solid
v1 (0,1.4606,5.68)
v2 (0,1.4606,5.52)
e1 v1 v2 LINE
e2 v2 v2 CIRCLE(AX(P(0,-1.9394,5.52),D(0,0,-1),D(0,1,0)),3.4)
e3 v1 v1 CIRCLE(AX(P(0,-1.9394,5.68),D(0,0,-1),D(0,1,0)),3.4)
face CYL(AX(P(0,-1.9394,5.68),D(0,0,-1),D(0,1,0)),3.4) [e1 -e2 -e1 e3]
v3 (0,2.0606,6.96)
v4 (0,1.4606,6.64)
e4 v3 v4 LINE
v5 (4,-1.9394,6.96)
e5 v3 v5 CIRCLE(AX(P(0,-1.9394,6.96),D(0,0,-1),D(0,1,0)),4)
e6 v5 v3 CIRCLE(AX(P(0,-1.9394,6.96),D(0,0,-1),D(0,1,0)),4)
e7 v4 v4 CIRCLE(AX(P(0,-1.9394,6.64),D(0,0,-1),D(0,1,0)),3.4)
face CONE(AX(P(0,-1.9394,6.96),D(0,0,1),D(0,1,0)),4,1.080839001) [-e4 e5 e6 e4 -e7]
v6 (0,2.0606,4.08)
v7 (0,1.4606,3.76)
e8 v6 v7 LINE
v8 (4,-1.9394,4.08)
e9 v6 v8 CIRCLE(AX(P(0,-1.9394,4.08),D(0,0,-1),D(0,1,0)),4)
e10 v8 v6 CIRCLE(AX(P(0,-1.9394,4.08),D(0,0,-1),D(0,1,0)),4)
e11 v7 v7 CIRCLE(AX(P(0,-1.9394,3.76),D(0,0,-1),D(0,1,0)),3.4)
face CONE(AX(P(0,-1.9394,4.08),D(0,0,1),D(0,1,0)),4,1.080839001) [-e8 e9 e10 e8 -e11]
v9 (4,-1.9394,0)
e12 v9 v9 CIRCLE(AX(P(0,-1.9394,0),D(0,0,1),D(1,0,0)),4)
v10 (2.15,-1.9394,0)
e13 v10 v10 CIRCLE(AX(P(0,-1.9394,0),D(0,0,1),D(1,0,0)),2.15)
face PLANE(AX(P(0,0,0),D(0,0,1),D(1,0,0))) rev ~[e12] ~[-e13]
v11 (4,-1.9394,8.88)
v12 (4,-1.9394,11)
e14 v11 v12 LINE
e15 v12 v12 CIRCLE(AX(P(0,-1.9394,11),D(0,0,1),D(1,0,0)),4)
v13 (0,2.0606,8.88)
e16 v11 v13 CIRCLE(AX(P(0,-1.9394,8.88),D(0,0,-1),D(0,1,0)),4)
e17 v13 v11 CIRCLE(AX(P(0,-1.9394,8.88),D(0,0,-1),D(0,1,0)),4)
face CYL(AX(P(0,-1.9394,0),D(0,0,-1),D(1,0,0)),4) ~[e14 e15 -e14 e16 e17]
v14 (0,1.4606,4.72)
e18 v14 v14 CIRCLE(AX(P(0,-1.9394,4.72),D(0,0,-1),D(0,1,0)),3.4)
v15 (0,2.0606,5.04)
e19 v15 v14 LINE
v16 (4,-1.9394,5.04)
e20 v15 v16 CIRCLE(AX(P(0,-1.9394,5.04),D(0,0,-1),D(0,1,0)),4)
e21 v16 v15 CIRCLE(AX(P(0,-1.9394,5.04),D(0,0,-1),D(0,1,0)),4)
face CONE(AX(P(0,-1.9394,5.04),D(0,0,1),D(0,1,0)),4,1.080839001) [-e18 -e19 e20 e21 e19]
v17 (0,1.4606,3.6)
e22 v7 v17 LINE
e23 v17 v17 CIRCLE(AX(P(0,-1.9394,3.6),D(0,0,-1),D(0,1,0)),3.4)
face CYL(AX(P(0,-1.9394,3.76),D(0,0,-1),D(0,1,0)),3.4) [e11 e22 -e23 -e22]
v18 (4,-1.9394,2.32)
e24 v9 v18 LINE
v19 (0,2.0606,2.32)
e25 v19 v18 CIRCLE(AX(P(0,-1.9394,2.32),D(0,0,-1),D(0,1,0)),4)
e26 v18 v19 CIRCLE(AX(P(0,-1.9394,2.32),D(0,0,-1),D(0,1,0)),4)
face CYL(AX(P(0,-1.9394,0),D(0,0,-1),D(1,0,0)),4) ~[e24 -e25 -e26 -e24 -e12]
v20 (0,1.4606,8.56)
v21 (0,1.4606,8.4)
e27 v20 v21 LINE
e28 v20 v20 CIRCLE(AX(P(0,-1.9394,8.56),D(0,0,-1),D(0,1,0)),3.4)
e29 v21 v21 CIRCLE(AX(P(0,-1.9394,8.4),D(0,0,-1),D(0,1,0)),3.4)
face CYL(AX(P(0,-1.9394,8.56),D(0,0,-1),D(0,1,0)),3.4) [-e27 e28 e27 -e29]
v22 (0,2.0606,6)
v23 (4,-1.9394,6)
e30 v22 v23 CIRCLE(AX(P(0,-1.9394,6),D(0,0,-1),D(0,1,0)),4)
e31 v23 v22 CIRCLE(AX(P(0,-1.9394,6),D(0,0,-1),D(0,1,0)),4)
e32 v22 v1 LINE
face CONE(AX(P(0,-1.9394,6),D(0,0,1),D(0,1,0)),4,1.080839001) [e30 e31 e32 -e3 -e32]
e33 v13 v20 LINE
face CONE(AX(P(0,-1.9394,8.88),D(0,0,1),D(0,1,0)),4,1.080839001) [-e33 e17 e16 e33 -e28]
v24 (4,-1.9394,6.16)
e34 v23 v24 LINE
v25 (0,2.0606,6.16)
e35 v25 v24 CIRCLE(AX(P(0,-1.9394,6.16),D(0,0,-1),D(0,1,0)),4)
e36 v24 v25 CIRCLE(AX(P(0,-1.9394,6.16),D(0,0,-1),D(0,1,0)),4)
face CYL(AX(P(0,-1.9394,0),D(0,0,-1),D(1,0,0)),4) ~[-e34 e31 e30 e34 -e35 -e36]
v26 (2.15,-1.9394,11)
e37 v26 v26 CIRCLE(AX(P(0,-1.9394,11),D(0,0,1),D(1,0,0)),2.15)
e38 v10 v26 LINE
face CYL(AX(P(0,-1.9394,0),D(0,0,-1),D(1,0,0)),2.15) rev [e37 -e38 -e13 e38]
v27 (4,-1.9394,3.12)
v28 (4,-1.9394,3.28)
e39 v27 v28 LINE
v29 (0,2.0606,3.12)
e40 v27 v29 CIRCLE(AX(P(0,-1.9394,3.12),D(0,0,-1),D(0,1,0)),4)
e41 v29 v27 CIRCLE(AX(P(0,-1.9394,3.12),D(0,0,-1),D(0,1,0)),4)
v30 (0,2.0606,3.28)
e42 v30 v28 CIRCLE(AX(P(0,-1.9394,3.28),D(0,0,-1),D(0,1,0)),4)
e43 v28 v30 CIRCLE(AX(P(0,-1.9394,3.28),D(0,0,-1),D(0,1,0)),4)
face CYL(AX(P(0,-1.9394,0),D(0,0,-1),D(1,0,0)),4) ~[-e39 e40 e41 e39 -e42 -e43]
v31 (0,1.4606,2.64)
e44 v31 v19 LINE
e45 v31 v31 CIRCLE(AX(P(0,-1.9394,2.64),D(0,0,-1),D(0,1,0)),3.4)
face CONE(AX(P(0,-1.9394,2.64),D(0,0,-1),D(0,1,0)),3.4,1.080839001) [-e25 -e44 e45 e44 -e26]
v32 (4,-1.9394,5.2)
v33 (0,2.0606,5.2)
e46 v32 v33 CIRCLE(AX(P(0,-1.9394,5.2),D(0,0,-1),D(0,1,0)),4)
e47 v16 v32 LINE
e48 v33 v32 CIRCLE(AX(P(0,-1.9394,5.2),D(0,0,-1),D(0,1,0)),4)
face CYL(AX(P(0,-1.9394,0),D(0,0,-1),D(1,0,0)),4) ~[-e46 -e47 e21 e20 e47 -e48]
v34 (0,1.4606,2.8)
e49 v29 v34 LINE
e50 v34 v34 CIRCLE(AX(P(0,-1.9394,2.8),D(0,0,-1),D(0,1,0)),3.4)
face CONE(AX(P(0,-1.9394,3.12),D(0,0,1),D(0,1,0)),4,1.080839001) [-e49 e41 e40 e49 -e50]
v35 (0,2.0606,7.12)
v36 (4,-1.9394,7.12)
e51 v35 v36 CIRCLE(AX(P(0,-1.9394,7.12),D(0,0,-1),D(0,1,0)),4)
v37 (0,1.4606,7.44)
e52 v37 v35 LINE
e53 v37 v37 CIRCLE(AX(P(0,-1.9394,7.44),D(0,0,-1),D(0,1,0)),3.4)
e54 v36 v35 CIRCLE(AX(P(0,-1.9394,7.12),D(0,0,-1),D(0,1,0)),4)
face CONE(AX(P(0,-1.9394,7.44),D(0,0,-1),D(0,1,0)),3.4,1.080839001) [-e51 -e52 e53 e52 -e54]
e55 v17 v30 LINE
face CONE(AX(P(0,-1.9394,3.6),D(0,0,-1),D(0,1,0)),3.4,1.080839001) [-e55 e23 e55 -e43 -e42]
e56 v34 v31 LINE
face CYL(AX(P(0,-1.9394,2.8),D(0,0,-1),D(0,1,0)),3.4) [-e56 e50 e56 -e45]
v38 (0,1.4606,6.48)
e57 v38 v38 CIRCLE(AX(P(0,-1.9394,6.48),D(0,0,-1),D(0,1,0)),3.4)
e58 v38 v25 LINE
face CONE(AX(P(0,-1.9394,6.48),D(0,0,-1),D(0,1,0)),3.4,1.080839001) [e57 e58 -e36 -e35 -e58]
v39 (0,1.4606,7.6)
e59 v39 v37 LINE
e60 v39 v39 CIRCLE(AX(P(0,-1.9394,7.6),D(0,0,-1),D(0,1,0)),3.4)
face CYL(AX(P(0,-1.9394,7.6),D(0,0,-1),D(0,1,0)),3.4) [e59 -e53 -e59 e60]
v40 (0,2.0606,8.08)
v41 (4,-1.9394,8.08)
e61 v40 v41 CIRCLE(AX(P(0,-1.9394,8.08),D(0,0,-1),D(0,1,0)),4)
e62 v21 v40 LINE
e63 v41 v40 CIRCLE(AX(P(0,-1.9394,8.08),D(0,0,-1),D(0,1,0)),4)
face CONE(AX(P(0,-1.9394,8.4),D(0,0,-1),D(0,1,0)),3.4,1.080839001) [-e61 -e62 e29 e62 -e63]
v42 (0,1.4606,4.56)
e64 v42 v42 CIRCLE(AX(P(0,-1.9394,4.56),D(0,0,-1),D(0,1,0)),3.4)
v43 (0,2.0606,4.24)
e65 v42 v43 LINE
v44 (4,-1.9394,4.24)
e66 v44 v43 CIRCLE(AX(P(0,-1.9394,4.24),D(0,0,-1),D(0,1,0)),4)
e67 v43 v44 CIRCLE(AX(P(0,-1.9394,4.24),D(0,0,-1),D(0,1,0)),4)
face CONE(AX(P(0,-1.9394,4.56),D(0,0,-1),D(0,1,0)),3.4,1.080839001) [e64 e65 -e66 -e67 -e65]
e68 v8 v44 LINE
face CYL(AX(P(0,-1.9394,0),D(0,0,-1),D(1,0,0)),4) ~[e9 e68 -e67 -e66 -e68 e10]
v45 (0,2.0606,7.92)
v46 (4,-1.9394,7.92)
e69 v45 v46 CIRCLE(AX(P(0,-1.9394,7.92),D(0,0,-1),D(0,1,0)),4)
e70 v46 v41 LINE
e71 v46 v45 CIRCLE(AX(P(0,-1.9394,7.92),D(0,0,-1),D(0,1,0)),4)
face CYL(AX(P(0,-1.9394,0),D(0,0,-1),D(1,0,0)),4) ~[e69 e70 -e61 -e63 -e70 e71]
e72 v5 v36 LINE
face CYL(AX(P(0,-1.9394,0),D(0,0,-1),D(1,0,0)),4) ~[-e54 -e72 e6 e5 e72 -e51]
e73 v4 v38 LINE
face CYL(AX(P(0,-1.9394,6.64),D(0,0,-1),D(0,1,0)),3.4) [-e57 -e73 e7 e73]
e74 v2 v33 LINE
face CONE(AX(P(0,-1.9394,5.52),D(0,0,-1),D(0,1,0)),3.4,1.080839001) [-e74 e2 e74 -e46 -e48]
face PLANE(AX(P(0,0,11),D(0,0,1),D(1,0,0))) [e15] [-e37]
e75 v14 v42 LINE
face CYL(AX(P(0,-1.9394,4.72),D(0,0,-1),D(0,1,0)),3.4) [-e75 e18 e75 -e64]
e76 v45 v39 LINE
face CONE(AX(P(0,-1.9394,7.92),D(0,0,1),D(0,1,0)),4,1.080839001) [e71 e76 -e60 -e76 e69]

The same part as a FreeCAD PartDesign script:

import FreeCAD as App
import Part
import Sketcher
from FreeCAD import Vector

doc = App.newDocument("Part")
body = doc.addObject("PartDesign::Body", "Body")

# Sketch on XY plane
sketch1 = doc.addObject("Sketcher::SketchObject", "Sketch")
body.addObject(sketch1)
sketch1.AttachmentSupport = (doc.XY_Plane, [""])
sketch1.MapMode = "FlatFace"
sketch1.addGeometry(Part.Circle(Vector(0, -1.9, 0), Vector(0, 0, 1), 4), False)
sketch1.addGeometry(Part.Circle(Vector(0, -1.9, 0), Vector(0, 0, 1), 2.1), False)
sketch1.addConstraint(Sketcher.Constraint("Coincident", 1, 3, 0, 3))
sketch1.addConstraint(Sketcher.Constraint("PointOnObject", 0, 3, -2))
sketch1.addConstraint(Sketcher.Constraint("Diameter", 0, 8.0))
sketch1.addConstraint(Sketcher.Constraint("Diameter", 1, 4.3))
sketch1.addConstraint(Sketcher.Constraint("DistanceY", 0, 3, -1, 1, 1.9394))
pad1 = doc.addObject("PartDesign::Pad", "Pad")
body.addObject(pad1)
pad1.Profile = sketch1
pad1.Length = 11

# Sketch on YZ plane
sketch2 = doc.addObject("Sketcher::SketchObject", "Sketch001")
body.addObject(sketch2)
sketch2.AttachmentSupport = (doc.YZ_Plane, [""])
sketch2.MapMode = "FlatFace"
sketch2.addGeometry(Part.LineSegment(Vector(2.06, 8.08, 0), Vector(2.06, 8.88, 0)), False)
sketch2.addGeometry(Part.LineSegment(Vector(2.06, 8.88, 0), Vector(1.46, 8.56, 0)), False)
sketch2.addGeometry(Part.LineSegment(Vector(1.46, 8.56, 0), Vector(1.46, 8.4, 0)), False)
sketch2.addGeometry(Part.LineSegment(Vector(1.46, 8.4, 0), Vector(2.06, 8.08, 0)), False)
sketch2.addGeometry(Part.LineSegment(Vector(2.06, 2.32, 0), Vector(2.06, 3.12, 0)), False)
sketch2.addGeometry(Part.LineSegment(Vector(2.06, 3.12, 0), Vector(1.46, 2.8, 0)), False)
sketch2.addGeometry(Part.LineSegment(Vector(1.46, 2.8, 0), Vector(1.46, 2.64, 0)), False)
sketch2.addGeometry(Part.LineSegment(Vector(1.46, 2.64, 0), Vector(2.06, 2.32, 0)), False)
sketch2.addGeometry(Part.LineSegment(Vector(2.06, 3.28, 0), Vector(2.06, 4.08, 0)), False)
sketch2.addGeometry(Part.LineSegment(Vector(2.06, 4.08, 0), Vector(1.46, 3.76, 0)), False)
sketch2.addGeometry(Part.LineSegment(Vector(1.46, 3.76, 0), Vector(1.46, 3.6, 0)), False)
sketch2.addGeometry(Part.LineSegment(Vector(1.46, 3.6, 0), Vector(2.06, 3.28, 0)), False)
sketch2.addGeometry(Part.LineSegment(Vector(2.06, 4.24, 0), Vector(2.06, 5.04, 0)), False)
sketch2.addGeometry(Part.LineSegment(Vector(2.06, 5.04, 0), Vector(1.46, 4.72, 0)), False)
sketch2.addGeometry(Part.LineSegment(Vector(1.46, 4.72, 0), Vector(1.46, 4.56, 0)), False)
sketch2.addGeometry(Part.LineSegment(Vector(1.46, 4.56, 0), Vector(2.06, 4.24, 0)), False)
sketch2.addGeometry(Part.LineSegment(Vector(2.06, 5.2, 0), Vector(2.06, 6, 0)), False)
sketch2.addGeometry(Part.LineSegment(Vector(2.06, 6, 0), Vector(1.46, 5.68, 0)), False)
sketch2.addGeometry(Part.LineSegment(Vector(1.46, 5.68, 0), Vector(1.46, 5.52, 0)), False)
sketch2.addGeometry(Part.LineSegment(Vector(1.46, 5.52, 0), Vector(2.06, 5.2, 0)), False)
sketch2.addGeometry(Part.LineSegment(Vector(2.06, 6.16, 0), Vector(2.06, 6.96, 0)), False)
sketch2.addGeometry(Part.LineSegment(Vector(2.06, 6.96, 0), Vector(1.46, 6.64, 0)), False)
sketch2.addGeometry(Part.LineSegment(Vector(1.46, 6.64, 0), Vector(1.46, 6.48, 0)), False)
sketch2.addGeometry(Part.LineSegment(Vector(1.46, 6.48, 0), Vector(2.06, 6.16, 0)), False)
sketch2.addGeometry(Part.LineSegment(Vector(2.06, 7.12, 0), Vector(2.06, 7.92, 0)), False)
sketch2.addGeometry(Part.LineSegment(Vector(2.06, 7.92, 0), Vector(1.46, 7.6, 0)), False)
sketch2.addGeometry(Part.LineSegment(Vector(1.46, 7.6, 0), Vector(1.46, 7.44, 0)), False)
sketch2.addGeometry(Part.LineSegment(Vector(1.46, 7.44, 0), Vector(2.06, 7.12, 0)), False)
sketch2.addGeometry(Part.LineSegment(Vector(-1.94, 8.88, 0), Vector(-1.94, 2.32, 0)), True)  # axis
sketch2.addConstraint(Sketcher.Constraint("Coincident", 0, 2, 1, 1))
sketch2.addConstraint(Sketcher.Constraint("Coincident", 1, 2, 2, 1))
sketch2.addConstraint(Sketcher.Constraint("Coincident", 2, 2, 3, 1))
sketch2.addConstraint(Sketcher.Constraint("Coincident", 3, 2, 0, 1))
sketch2.addConstraint(Sketcher.Constraint("Coincident", 4, 2, 5, 1))
sketch2.addConstraint(Sketcher.Constraint("Coincident", 5, 2, 6, 1))
sketch2.addConstraint(Sketcher.Constraint("Coincident", 6, 2, 7, 1))
sketch2.addConstraint(Sketcher.Constraint("Coincident", 7, 2, 4, 1))
sketch2.addConstraint(Sketcher.Constraint("Coincident", 8, 2, 9, 1))
sketch2.addConstraint(Sketcher.Constraint("Coincident", 9, 2, 10, 1))
sketch2.addConstraint(Sketcher.Constraint("Coincident", 10, 2, 11, 1))
sketch2.addConstraint(Sketcher.Constraint("Coincident", 11, 2, 8, 1))
sketch2.addConstraint(Sketcher.Constraint("Coincident", 12, 2, 13, 1))
sketch2.addConstraint(Sketcher.Constraint("Coincident", 13, 2, 14, 1))
sketch2.addConstraint(Sketcher.Constraint("Coincident", 14, 2, 15, 1))
sketch2.addConstraint(Sketcher.Constraint("Coincident", 15, 2, 12, 1))
sketch2.addConstraint(Sketcher.Constraint("Coincident", 16, 2, 17, 1))
sketch2.addConstraint(Sketcher.Constraint("Coincident", 17, 2, 18, 1))
sketch2.addConstraint(Sketcher.Constraint("Coincident", 18, 2, 19, 1))
sketch2.addConstraint(Sketcher.Constraint("Coincident", 19, 2, 16, 1))
sketch2.addConstraint(Sketcher.Constraint("Coincident", 20, 2, 21, 1))
sketch2.addConstraint(Sketcher.Constraint("Coincident", 21, 2, 22, 1))
sketch2.addConstraint(Sketcher.Constraint("Coincident", 22, 2, 23, 1))
sketch2.addConstraint(Sketcher.Constraint("Coincident", 23, 2, 20, 1))
sketch2.addConstraint(Sketcher.Constraint("Coincident", 24, 2, 25, 1))
sketch2.addConstraint(Sketcher.Constraint("Coincident", 25, 2, 26, 1))
sketch2.addConstraint(Sketcher.Constraint("Coincident", 26, 2, 27, 1))
sketch2.addConstraint(Sketcher.Constraint("Coincident", 27, 2, 24, 1))
sketch2.addConstraint(Sketcher.Constraint("Vertical", 0))
sketch2.addConstraint(Sketcher.Constraint("Vertical", 2))
sketch2.addConstraint(Sketcher.Constraint("Vertical", 4))
sketch2.addConstraint(Sketcher.Constraint("Vertical", 6))
sketch2.addConstraint(Sketcher.Constraint("Vertical", 8))
sketch2.addConstraint(Sketcher.Constraint("Vertical", 10))
sketch2.addConstraint(Sketcher.Constraint("Vertical", 12))
sketch2.addConstraint(Sketcher.Constraint("Vertical", 14))
sketch2.addConstraint(Sketcher.Constraint("Vertical", 16))
sketch2.addConstraint(Sketcher.Constraint("Vertical", 18))
sketch2.addConstraint(Sketcher.Constraint("Vertical", 20))
sketch2.addConstraint(Sketcher.Constraint("Vertical", 22))
sketch2.addConstraint(Sketcher.Constraint("Vertical", 24))
sketch2.addConstraint(Sketcher.Constraint("Vertical", 26))
sketch2.addConstraint(Sketcher.Constraint("Vertical", 28))
sketch2.addConstraint(Sketcher.Constraint("Parallel", 1, 5))
sketch2.addConstraint(Sketcher.Constraint("Parallel", 3, 7))
sketch2.addConstraint(Sketcher.Constraint("Parallel", 5, 9))
sketch2.addConstraint(Sketcher.Constraint("Parallel", 7, 11))
sketch2.addConstraint(Sketcher.Constraint("Parallel", 9, 13))
sketch2.addConstraint(Sketcher.Constraint("Parallel", 11, 15))
sketch2.addConstraint(Sketcher.Constraint("Parallel", 13, 17))
sketch2.addConstraint(Sketcher.Constraint("Parallel", 15, 19))
sketch2.addConstraint(Sketcher.Constraint("Parallel", 17, 21))
sketch2.addConstraint(Sketcher.Constraint("Parallel", 19, 23))
sketch2.addConstraint(Sketcher.Constraint("Parallel", 21, 25))
sketch2.addConstraint(Sketcher.Constraint("Parallel", 23, 27))
sketch2.addConstraint(Sketcher.Constraint("Horizontal", 0, 2, 28, 1))
sketch2.addConstraint(Sketcher.Constraint("Horizontal", 7, 2, 28, 2))
sketch2.addConstraint(Sketcher.Constraint("Vertical", 3, 2, 4, 2))
sketch2.addConstraint(Sketcher.Constraint("Vertical", 2, 2, 5, 2))
sketch2.addConstraint(Sketcher.Constraint("Vertical", 7, 2, 8, 2))
sketch2.addConstraint(Sketcher.Constraint("Vertical", 6, 2, 9, 2))
sketch2.addConstraint(Sketcher.Constraint("Vertical", 11, 2, 12, 2))
sketch2.addConstraint(Sketcher.Constraint("Vertical", 10, 2, 13, 2))
sketch2.addConstraint(Sketcher.Constraint("Vertical", 15, 2, 16, 2))
sketch2.addConstraint(Sketcher.Constraint("Vertical", 14, 2, 17, 2))
sketch2.addConstraint(Sketcher.Constraint("Vertical", 19, 2, 20, 2))
sketch2.addConstraint(Sketcher.Constraint("Vertical", 18, 2, 21, 2))
sketch2.addConstraint(Sketcher.Constraint("Vertical", 23, 2, 24, 2))
sketch2.addConstraint(Sketcher.Constraint("Vertical", 22, 2, 25, 2))
sketch2.addConstraint(Sketcher.Constraint("Equal", 0, 4))
sketch2.addConstraint(Sketcher.Constraint("Equal", 4, 8))
sketch2.addConstraint(Sketcher.Constraint("Equal", 8, 12))
sketch2.addConstraint(Sketcher.Constraint("Equal", 12, 16))
sketch2.addConstraint(Sketcher.Constraint("Equal", 16, 20))
sketch2.addConstraint(Sketcher.Constraint("Equal", 20, 24))
sketch2.addConstraint(Sketcher.Constraint("Equal", 1, 3))
sketch2.addConstraint(Sketcher.Constraint("DistanceY", 0, 1, 0, 2, 0.8))
sketch2.addConstraint(Sketcher.Constraint("DistanceY", 2, 2, 2, 1, 0.16))
sketch2.addConstraint(Sketcher.Constraint("DistanceX", 1, 2, 0, 2, 0.6))
sketch2.addConstraint(Sketcher.Constraint("DistanceY", 5, 2, 10, 2, 0.8))
sketch2.addConstraint(Sketcher.Constraint("DistanceY", 9, 2, 14, 2, 0.8))
sketch2.addConstraint(Sketcher.Constraint("DistanceY", 13, 2, 18, 2, 0.8))
sketch2.addConstraint(Sketcher.Constraint("DistanceY", 17, 2, 22, 2, 0.8))
sketch2.addConstraint(Sketcher.Constraint("DistanceY", 25, 2, 2, 2, 0.8))
sketch2.addConstraint(Sketcher.Constraint("DistanceY", 21, 2, 26, 2, 0.8))
sketch2.addConstraint(Sketcher.Constraint("DistanceY", -1, 1, 16, 2, 6.0))
sketch2.addConstraint(Sketcher.Constraint("DistanceX", 28, 1, 0, 2, 4.0))
sketch2.addConstraint(Sketcher.Constraint("DistanceX", -1, 1, 0, 2, 2.0606))
groove = doc.addObject("PartDesign::Groove", "Groove")
body.addObject(groove)
groove.Profile = sketch2
groove.ReferenceAxis = (sketch2, ["Axis0"])
groove.Angle = 360

doc.recompute()
